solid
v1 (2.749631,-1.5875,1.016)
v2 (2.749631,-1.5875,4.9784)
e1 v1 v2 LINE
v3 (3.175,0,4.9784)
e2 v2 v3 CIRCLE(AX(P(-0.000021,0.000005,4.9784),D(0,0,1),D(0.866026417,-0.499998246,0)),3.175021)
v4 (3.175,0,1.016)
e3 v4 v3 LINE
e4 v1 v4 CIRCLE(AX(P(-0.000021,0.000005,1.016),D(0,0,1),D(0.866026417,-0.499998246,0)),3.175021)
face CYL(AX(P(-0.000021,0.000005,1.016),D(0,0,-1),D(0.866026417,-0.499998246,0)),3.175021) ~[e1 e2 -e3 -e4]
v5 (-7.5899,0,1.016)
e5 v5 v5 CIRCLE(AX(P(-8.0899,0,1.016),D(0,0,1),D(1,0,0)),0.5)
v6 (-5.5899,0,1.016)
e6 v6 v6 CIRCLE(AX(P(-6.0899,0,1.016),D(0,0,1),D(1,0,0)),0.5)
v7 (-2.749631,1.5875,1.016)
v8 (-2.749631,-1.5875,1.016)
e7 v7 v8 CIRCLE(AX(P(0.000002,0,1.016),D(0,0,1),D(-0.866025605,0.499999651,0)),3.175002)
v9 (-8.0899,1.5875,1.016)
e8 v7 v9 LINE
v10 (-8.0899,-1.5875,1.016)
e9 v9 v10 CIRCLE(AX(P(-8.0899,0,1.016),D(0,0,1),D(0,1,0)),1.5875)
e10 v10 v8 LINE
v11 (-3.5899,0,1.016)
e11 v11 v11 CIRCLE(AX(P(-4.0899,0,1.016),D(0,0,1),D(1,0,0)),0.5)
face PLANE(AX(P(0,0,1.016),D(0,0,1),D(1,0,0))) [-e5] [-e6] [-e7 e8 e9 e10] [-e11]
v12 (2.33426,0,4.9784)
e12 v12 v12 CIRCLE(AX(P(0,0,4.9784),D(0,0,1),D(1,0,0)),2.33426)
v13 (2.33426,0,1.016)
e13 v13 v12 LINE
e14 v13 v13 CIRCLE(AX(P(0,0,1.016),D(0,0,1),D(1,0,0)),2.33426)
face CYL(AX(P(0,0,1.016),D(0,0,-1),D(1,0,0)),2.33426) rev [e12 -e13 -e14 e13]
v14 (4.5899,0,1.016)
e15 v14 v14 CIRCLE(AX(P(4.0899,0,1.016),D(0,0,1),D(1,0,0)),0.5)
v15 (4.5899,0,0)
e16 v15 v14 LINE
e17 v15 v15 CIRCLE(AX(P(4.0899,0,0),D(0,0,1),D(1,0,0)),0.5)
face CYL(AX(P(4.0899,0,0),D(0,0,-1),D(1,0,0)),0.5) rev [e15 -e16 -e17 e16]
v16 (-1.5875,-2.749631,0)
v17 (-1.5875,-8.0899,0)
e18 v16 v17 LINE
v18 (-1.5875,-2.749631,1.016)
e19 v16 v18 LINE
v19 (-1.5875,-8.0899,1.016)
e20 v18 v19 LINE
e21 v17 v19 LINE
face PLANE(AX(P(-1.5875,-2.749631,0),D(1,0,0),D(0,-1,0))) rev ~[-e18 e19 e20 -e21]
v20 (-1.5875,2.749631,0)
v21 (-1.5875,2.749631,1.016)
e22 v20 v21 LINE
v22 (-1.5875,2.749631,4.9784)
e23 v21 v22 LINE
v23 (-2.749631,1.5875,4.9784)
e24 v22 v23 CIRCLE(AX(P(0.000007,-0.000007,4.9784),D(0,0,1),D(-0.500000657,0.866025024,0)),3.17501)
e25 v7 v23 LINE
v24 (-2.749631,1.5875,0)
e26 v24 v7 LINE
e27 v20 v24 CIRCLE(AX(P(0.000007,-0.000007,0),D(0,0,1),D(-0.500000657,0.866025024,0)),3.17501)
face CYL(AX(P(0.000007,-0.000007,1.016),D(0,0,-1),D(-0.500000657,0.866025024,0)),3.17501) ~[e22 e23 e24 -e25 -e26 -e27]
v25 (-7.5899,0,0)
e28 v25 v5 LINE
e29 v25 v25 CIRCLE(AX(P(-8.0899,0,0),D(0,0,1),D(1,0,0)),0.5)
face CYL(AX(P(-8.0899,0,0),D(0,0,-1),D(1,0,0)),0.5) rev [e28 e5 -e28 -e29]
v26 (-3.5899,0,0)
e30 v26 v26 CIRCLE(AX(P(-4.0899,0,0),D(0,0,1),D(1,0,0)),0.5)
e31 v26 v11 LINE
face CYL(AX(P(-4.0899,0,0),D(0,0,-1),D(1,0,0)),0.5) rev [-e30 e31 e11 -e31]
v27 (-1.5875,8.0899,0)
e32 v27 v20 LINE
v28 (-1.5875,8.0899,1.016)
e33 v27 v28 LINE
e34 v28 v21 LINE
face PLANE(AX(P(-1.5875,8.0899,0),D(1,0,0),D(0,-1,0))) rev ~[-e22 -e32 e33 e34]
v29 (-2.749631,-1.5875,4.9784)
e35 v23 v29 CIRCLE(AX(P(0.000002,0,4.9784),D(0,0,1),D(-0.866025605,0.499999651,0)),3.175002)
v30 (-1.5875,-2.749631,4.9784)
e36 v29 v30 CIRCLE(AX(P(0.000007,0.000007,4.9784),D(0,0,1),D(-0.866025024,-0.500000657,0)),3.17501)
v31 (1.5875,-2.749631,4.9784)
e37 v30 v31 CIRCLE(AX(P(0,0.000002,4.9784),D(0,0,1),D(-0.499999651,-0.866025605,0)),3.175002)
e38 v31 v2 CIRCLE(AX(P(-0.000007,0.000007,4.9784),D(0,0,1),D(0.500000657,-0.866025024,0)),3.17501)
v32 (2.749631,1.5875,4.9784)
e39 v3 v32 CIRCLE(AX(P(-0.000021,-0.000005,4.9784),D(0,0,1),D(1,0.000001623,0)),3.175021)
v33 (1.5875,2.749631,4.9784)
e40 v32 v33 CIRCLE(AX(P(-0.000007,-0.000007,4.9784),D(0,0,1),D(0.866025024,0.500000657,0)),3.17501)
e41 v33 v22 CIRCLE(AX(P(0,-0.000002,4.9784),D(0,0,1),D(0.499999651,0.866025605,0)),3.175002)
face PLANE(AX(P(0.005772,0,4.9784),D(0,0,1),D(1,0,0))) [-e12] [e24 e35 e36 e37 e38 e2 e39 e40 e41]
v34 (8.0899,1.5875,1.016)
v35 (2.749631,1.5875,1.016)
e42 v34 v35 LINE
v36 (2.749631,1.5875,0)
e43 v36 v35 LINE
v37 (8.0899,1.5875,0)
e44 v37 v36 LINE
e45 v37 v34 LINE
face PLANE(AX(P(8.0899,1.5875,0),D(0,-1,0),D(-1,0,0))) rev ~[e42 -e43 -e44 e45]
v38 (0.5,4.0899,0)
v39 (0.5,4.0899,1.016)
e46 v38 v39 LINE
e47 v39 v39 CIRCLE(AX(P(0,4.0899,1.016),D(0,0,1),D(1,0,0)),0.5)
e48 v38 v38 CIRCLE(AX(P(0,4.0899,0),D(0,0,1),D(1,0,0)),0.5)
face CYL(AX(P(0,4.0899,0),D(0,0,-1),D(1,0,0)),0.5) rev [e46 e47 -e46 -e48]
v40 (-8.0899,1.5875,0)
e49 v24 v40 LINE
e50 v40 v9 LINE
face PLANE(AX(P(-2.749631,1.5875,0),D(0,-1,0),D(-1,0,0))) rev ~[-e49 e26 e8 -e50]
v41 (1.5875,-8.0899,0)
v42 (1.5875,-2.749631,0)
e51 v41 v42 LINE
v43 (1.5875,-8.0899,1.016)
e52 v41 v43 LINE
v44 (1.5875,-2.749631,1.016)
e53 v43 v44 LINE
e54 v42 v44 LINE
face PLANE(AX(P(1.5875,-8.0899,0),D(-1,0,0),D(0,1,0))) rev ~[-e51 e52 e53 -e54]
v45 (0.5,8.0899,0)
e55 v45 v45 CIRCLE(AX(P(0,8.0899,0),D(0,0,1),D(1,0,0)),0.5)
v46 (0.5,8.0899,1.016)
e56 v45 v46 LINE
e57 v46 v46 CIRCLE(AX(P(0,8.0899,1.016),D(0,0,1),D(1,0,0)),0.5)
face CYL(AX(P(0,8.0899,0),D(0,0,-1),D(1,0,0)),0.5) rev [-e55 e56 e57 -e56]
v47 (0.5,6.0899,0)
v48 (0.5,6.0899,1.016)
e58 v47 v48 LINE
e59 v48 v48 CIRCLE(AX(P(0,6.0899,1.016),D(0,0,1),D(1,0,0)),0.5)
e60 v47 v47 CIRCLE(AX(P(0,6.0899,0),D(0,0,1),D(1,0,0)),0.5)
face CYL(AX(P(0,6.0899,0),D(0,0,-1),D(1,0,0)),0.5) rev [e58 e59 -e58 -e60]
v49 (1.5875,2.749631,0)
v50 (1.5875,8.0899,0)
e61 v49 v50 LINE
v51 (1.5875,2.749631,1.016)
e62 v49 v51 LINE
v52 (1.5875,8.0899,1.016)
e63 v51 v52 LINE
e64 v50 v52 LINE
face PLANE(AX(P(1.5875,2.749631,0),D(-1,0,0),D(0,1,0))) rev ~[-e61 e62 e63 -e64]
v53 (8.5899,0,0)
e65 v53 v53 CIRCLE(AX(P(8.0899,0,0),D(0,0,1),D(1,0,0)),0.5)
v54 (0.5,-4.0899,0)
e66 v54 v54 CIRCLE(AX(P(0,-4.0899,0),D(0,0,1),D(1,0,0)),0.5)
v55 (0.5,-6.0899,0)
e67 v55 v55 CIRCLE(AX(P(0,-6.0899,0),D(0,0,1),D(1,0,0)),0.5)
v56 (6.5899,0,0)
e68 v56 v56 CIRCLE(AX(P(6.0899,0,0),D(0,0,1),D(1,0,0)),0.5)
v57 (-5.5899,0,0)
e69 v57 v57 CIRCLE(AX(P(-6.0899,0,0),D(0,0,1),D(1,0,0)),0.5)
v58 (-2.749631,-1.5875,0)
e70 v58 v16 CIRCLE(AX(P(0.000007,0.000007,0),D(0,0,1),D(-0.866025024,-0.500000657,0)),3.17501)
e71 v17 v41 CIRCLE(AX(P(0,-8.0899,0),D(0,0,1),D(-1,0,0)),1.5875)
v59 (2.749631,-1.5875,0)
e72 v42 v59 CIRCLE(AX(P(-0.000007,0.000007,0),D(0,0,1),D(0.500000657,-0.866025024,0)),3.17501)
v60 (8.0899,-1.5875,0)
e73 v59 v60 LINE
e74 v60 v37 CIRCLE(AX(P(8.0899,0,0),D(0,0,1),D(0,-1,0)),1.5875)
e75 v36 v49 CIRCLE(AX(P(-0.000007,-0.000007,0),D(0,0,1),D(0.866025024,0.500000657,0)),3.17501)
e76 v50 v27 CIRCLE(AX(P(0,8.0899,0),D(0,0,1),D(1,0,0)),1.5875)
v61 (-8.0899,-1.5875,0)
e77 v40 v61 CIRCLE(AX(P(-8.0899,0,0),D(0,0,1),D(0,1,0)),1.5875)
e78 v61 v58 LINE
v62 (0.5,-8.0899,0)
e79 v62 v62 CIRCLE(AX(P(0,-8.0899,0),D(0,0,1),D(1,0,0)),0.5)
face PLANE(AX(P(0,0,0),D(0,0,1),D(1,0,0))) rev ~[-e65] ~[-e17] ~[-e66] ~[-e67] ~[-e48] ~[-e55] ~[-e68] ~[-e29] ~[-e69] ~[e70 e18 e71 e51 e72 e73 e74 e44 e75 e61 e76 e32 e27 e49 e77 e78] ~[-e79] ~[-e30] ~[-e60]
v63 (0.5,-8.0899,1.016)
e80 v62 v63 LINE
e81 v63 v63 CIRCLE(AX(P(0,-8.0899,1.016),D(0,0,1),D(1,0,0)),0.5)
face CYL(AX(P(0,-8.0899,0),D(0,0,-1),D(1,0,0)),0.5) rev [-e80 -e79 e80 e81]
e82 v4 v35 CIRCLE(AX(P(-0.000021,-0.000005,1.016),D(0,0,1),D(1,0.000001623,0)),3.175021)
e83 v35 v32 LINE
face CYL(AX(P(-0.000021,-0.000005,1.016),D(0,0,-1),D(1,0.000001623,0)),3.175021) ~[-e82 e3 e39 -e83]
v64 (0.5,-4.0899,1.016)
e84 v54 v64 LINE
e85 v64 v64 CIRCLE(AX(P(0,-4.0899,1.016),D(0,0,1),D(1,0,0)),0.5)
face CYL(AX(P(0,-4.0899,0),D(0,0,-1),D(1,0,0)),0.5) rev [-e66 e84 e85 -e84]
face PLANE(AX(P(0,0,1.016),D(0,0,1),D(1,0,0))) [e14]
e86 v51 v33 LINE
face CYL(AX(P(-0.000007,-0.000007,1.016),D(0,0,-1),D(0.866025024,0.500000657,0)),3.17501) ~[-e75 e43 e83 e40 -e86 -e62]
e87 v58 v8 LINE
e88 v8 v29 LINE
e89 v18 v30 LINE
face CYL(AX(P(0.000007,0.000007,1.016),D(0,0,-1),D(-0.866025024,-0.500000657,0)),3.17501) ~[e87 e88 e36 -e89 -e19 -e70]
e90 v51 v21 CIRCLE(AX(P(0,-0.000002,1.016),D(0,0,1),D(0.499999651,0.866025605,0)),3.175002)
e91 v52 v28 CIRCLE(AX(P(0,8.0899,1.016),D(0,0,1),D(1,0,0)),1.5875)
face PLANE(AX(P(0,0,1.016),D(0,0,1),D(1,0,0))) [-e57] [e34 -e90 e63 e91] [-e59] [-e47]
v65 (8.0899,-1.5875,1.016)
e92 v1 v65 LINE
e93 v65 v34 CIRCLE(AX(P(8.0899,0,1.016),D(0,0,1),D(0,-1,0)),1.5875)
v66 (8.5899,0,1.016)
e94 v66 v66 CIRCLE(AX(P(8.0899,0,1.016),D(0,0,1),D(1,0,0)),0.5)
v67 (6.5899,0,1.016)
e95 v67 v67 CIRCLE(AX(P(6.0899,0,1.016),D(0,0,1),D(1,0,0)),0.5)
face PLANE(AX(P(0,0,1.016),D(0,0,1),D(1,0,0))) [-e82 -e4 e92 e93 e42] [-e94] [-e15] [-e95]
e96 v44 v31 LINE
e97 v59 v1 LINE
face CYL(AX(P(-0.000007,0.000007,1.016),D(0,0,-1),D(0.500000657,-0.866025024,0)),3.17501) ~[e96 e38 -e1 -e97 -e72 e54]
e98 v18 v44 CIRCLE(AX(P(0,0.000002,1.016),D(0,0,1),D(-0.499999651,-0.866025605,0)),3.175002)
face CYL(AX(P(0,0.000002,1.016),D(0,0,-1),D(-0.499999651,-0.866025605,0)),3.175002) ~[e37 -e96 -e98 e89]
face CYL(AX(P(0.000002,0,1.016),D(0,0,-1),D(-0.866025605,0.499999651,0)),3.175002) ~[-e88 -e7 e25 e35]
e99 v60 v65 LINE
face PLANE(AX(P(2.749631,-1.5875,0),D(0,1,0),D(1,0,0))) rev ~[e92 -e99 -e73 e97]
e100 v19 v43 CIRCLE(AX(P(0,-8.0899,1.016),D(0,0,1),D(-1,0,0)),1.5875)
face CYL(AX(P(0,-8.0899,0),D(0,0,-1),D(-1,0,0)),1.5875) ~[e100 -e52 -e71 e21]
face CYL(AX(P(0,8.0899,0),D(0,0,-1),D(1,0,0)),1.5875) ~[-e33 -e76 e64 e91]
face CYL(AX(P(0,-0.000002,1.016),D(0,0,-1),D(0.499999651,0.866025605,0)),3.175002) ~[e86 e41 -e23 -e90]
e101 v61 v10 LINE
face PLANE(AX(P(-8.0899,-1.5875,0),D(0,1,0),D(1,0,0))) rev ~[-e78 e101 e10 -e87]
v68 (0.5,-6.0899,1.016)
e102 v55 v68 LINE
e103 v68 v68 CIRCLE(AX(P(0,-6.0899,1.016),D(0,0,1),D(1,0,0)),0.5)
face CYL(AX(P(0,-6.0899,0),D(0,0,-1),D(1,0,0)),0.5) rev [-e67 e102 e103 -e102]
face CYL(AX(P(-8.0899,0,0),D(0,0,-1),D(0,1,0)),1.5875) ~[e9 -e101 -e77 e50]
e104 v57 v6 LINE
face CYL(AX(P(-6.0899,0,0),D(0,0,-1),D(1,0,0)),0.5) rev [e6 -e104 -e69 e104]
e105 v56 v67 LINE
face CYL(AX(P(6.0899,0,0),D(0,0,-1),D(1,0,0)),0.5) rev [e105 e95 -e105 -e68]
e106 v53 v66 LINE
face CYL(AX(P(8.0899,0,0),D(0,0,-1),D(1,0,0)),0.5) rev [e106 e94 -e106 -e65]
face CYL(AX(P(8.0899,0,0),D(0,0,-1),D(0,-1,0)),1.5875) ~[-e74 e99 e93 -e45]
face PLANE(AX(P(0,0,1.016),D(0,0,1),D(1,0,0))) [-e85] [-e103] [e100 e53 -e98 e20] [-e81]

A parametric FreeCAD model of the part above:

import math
import FreeCAD as App
import Part
import Sketcher
from FreeCAD import Vector
Q = App.Units.Quantity

doc = App.newDocument("Part")
body = doc.addObject("PartDesign::Body", "Body")

# Sketch on XY plane
sketch1 = body.newObject("Sketcher::SketchObject", "Sketch")
sketch1.AttachmentSupport = (doc.getObject("XY_Plane"), [""])
sketch1.MapMode = "FlatFace"
sketch1.addGeometry([
    Part.LineSegment(Vector(1.6, 2.7, 0), Vector(1.6, 8.1, 0)),  # 0
    Part.ArcOfCircle(Part.Circle(Vector(0, 8.1, 0), Vector(0, 0, 1), 1.6), math.radians(0), math.radians(180)),  # 1
    Part.LineSegment(Vector(-1.6, 8.1, 0), Vector(-1.6, 2.7, 0)),  # 2
    Part.ArcOfCircle(Part.Circle(Vector(0, 0, 0), Vector(0, 0, 1), 3.2), math.radians(120), math.radians(150)),  # 3
    Part.LineSegment(Vector(-2.7, 1.6, 0), Vector(-8.1, 1.6, 0)),  # 4
    Part.ArcOfCircle(Part.Circle(Vector(-8.1, 0, 0), Vector(0, 0, 1), 1.6), math.radians(90), math.radians(270)),  # 5
    Part.LineSegment(Vector(-8.1, -1.6, 0), Vector(-2.7, -1.6, 0)),  # 6
    Part.ArcOfCircle(Part.Circle(Vector(0, 0, 0), Vector(0, 0, 1), 3.2), math.radians(-150), math.radians(-120)),  # 7
    Part.LineSegment(Vector(-1.6, -2.7, 0), Vector(-1.6, -8.1, 0)),  # 8
    Part.ArcOfCircle(Part.Circle(Vector(0, -8.1, 0), Vector(0, 0, 1), 1.6), math.radians(180), math.radians(360)),  # 9
    Part.LineSegment(Vector(1.6, -8.1, 0), Vector(1.6, -2.7, 0)),  # 10
    Part.ArcOfCircle(Part.Circle(Vector(0, 0, 0), Vector(0, 0, 1), 3.2), math.radians(-60), math.radians(-30)),  # 11
    Part.LineSegment(Vector(2.7, -1.6, 0), Vector(8.1, -1.6, 0)),  # 12
    Part.ArcOfCircle(Part.Circle(Vector(8.1, 0, 0), Vector(0, 0, 1), 1.6), math.radians(-90), math.radians(90)),  # 13
    Part.LineSegment(Vector(8.1, 1.6, 0), Vector(2.7, 1.6, 0)),  # 14
    Part.ArcOfCircle(Part.Circle(Vector(0, 0, 0), Vector(0, 0, 1), 3.2), math.radians(30), math.radians(60)),  # 15
    Part.Circle(Vector(0, -8.1, 0), Vector(0, 0, 1), 0.5),  # 16
    Part.Circle(Vector(0, -6.1, 0), Vector(0, 0, 1), 0.5),  # 17
    Part.Circle(Vector(0, -4.1, 0), Vector(0, 0, 1), 0.5),  # 18
    Part.Circle(Vector(-8.1, 0, 0), Vector(0, 0, 1), 0.5),  # 19
    Part.Circle(Vector(-6.1, 0, 0), Vector(0, 0, 1), 0.5),  # 20
    Part.Circle(Vector(-4.1, 0, 0), Vector(0, 0, 1), 0.5),  # 21
    Part.Circle(Vector(4.1, 0, 0), Vector(0, 0, 1), 0.5),  # 22
    Part.Circle(Vector(0, 4.1, 0), Vector(0, 0, 1), 0.5),  # 23
    Part.Circle(Vector(6.1, 0, 0), Vector(0, 0, 1), 0.5),  # 24
    Part.Circle(Vector(8.1, 0, 0), Vector(0, 0, 1), 0.5),  # 25
    Part.Circle(Vector(0, 6.1, 0), Vector(0, 0, 1), 0.5),  # 26
    Part.Circle(Vector(0, 8.1, 0), Vector(0, 0, 1), 0.5),  # 27
], False)
sketch1.addConstraint([
    Sketcher.Constraint("Tangent", 0, 2, 1, 1),
    Sketcher.Constraint("Tangent", 1, 2, 2, 1),
    Sketcher.Constraint("Coincident", 2, 2, 3, 1),
    Sketcher.Constraint("Coincident", 3, 2, 4, 1),
    Sketcher.Constraint("Tangent", 4, 2, 5, 1),
    Sketcher.Constraint("Tangent", 5, 2, 6, 1),
    Sketcher.Constraint("Coincident", 6, 2, 7, 1),
    Sketcher.Constraint("Coincident", 7, 2, 8, 1),
    Sketcher.Constraint("Tangent", 8, 2, 9, 1),
    Sketcher.Constraint("Tangent", 9, 2, 10, 1),
    Sketcher.Constraint("Coincident", 10, 2, 11, 1),
    Sketcher.Constraint("Coincident", 11, 2, 12, 1),
    Sketcher.Constraint("Tangent", 12, 2, 13, 1),
    Sketcher.Constraint("Tangent", 13, 2, 14, 1),
    Sketcher.Constraint("Coincident", 14, 2, 15, 1),
    Sketcher.Constraint("Coincident", 15, 2, 0, 1),
    Sketcher.Constraint("Vertical", 0),
    Sketcher.Constraint("Vertical", 2),
    Sketcher.Constraint("Horizontal", 4),
    Sketcher.Constraint("Horizontal", 6),
    Sketcher.Constraint("Vertical", 8),
    Sketcher.Constraint("Vertical", 10),
    Sketcher.Constraint("Horizontal", 12),
    Sketcher.Constraint("Horizontal", 14),
    Sketcher.Constraint("Coincident", 3, 3, -1, 1),
    Sketcher.Constraint("Coincident", 7, 3, -1, 1),
    Sketcher.Constraint("Coincident", 11, 3, -1, 1),
    Sketcher.Constraint("Coincident", 15, 3, -1, 1),
    Sketcher.Constraint("Coincident", 16, 3, 9, 3),
    Sketcher.Constraint("Coincident", 19, 3, 5, 3),
    Sketcher.Constraint("Coincident", 25, 3, 13, 3),
    Sketcher.Constraint("Coincident", 27, 3, 1, 3),
    Sketcher.Constraint("Equal", 1, 5),
    Sketcher.Constraint("Equal", 3, 7),
    Sketcher.Constraint("Equal", 5, 9),
    Sketcher.Constraint("Equal", 7, 11),
    Sketcher.Constraint("Equal", 9, 13),
    Sketcher.Constraint("Equal", 11, 15),
    Sketcher.Constraint("Equal", 16, 17),
    Sketcher.Constraint("Equal", 17, 18),
    Sketcher.Constraint("Equal", 18, 19),
    Sketcher.Constraint("Equal", 19, 20),
    Sketcher.Constraint("Equal", 20, 21),
    Sketcher.Constraint("Equal", 21, 22),
    Sketcher.Constraint("Equal", 22, 23),
    Sketcher.Constraint("Equal", 23, 24),
    Sketcher.Constraint("Equal", 24, 25),
    Sketcher.Constraint("Equal", 25, 26),
    Sketcher.Constraint("Equal", 26, 27),
    Sketcher.Constraint("Symmetric", 1, 3, 9, 3, -1, 1),
    Sketcher.Constraint("Symmetric", 5, 3, 13, 3, -1, 1),
    Sketcher.Constraint("Symmetric", 21, 3, 22, 3, -1, 1),
    Sketcher.Constraint("Symmetric", 18, 3, 23, 3, -1, 1),
    Sketcher.Constraint("Symmetric", 20, 3, 24, 3, -1, 1),
    Sketcher.Constraint("Symmetric", 17, 3, 26, 3, -1, 1),
    Sketcher.Constraint("PointOnObject", 1, 3, -2),
    Sketcher.Constraint("PointOnObject", 5, 3, -1),
    Sketcher.Constraint("PointOnObject", 17, 3, -2),
    Sketcher.Constraint("PointOnObject", 18, 3, -2),
    Sketcher.Constraint("PointOnObject", 20, 3, -1),
    Sketcher.Constraint("PointOnObject", 21, 3, -1),
    Sketcher.Constraint("Equal", 14, 0),
    Sketcher.Constraint("Radius", 1, Q("0.0625 in")),
    Sketcher.Constraint("Diameter", 16, Q("1 mm")),
    Sketcher.Constraint("Radius", 3, Q("3.17501 mm")),
    Sketcher.Constraint("DistanceY", 9, 3, 1, 3, Q("0.637 in")),
    Sketcher.Constraint("DistanceY", 17, 3, -1, 1, Q("6.0899 mm")),
    Sketcher.Constraint("DistanceY", 18, 3, -1, 1, Q("4.0899 mm")),
    Sketcher.Constraint("DistanceX", 20, 3, -1, 1, Q("6.0899 mm")),
    Sketcher.Constraint("DistanceX", 21, 3, -1, 1, Q("4.0899 mm")),
])
pad1 = body.newObject("PartDesign::Pad", "Pad")
pad1.Profile = sketch1
pad1.Length = Q("0.04 in")

# Sketch on XY plane
sketch2 = body.newObject("Sketcher::SketchObject", "Sketch001")
sketch2.AttachmentSupport = (doc.getObject("XY_Plane"), [""])
sketch2.MapMode = "FlatFace"
sketch2.AttachmentOffset = App.Placement(Vector(0, 0, 0.04 * 25.4), App.Rotation())
sketch2.addGeometry([
    Part.ArcOfCircle(Part.Circle(Vector(0, 0, 0), Vector(0, 0, 1), 3.2), math.radians(-30), math.radians(0)),  # 0
    Part.ArcOfCircle(Part.Circle(Vector(0, 0, 0), Vector(0, 0, 1), 3.2), math.radians(0), math.radians(30)),  # 1
    Part.ArcOfCircle(Part.Circle(Vector(0, 0, 0), Vector(0, 0, 1), 3.2), math.radians(30), math.radians(60)),  # 2
    Part.ArcOfCircle(Part.Circle(Vector(0, 0, 0), Vector(0, 0, 1), 3.2), math.radians(60), math.radians(120)),  # 3
    Part.ArcOfCircle(Part.Circle(Vector(0, 0, 0), Vector(0, 0, 1), 3.2), math.radians(120), math.radians(150)),  # 4
    Part.ArcOfCircle(Part.Circle(Vector(0, 0, 0), Vector(0, 0, 1), 3.2), math.radians(150), math.radians(210)),  # 5
    Part.ArcOfCircle(Part.Circle(Vector(0, 0, 0), Vector(0, 0, 1), 3.2), math.radians(-150), math.radians(-120)),  # 6
    Part.ArcOfCircle(Part.Circle(Vector(0, 0, 0), Vector(0, 0, 1), 3.2), math.radians(-120), math.radians(-60)),  # 7
    Part.ArcOfCircle(Part.Circle(Vector(0, 0, 0), Vector(0, 0, 1), 3.2), math.radians(-60), math.radians(-30)),  # 8
    Part.Circle(Vector(0, 0, 0), Vector(0, 0, 1), 2.3),  # 9
], False)
sketch2.addConstraint([
    Sketcher.Constraint("Coincident", 0, 2, 1, 1),
    Sketcher.Constraint("Coincident", 1, 2, 2, 1),
    Sketcher.Constraint("Tangent", 2, 2, 3, 1),
    Sketcher.Constraint("Tangent", 3, 2, 4, 1),
    Sketcher.Constraint("Tangent", 4, 2, 5, 1),
    Sketcher.Constraint("Tangent", 5, 2, 6, 1),
    Sketcher.Constraint("Tangent", 6, 2, 7, 1),
    Sketcher.Constraint("Tangent", 7, 2, 8, 1),
    Sketcher.Constraint("Coincident", 8, 2, 0, 1),
    Sketcher.Constraint("Coincident", 2, 3, -1, 1),
    Sketcher.Constraint("Coincident", 4, 3, -1, 1),
    Sketcher.Constraint("Coincident", 6, 3, -1, 1),
    Sketcher.Constraint("Coincident", 8, 3, -1, 1),
    Sketcher.Constraint("Coincident", 9, 3, -1, 1),
    Sketcher.Constraint("Equal", 0, 1),
    Sketcher.Constraint("PointOnObject", 0, 2, -1),
    Sketcher.Constraint("Horizontal", 1, 3, 2, 3),
    Sketcher.Constraint("Horizontal", 2, 2, 3, 2),
    Sketcher.Constraint("Horizontal", 1, 2, 4, 2),
    Sketcher.Constraint("Horizontal", 6, 2, 7, 2),
    Sketcher.Constraint("Horizontal", 5, 2, 8, 2),
    Sketcher.Constraint("Vertical", 4, 2, 5, 2),
    Sketcher.Constraint("Vertical", 3, 2, 6, 2),
    Sketcher.Constraint("Radius", 3, Q("0.1250001 in")),
    Sketcher.Constraint("Diameter", 9, Q("0.1838 in")),
    Sketcher.Constraint("DistanceX", -1, 1, 0, 2, Q("0.125 in")),
    Sketcher.Constraint("DistanceY", -1, 1, 1, 2, Q("0.0625 in")),
    Sketcher.Constraint("DistanceX", -1, 1, 2, 2, Q("0.0625 in")),
])
pad2 = body.newObject("PartDesign::Pad", "Pad001")
pad2.Profile = sketch2
pad2.Length = Q("0.156 in")

doc.recompute()
